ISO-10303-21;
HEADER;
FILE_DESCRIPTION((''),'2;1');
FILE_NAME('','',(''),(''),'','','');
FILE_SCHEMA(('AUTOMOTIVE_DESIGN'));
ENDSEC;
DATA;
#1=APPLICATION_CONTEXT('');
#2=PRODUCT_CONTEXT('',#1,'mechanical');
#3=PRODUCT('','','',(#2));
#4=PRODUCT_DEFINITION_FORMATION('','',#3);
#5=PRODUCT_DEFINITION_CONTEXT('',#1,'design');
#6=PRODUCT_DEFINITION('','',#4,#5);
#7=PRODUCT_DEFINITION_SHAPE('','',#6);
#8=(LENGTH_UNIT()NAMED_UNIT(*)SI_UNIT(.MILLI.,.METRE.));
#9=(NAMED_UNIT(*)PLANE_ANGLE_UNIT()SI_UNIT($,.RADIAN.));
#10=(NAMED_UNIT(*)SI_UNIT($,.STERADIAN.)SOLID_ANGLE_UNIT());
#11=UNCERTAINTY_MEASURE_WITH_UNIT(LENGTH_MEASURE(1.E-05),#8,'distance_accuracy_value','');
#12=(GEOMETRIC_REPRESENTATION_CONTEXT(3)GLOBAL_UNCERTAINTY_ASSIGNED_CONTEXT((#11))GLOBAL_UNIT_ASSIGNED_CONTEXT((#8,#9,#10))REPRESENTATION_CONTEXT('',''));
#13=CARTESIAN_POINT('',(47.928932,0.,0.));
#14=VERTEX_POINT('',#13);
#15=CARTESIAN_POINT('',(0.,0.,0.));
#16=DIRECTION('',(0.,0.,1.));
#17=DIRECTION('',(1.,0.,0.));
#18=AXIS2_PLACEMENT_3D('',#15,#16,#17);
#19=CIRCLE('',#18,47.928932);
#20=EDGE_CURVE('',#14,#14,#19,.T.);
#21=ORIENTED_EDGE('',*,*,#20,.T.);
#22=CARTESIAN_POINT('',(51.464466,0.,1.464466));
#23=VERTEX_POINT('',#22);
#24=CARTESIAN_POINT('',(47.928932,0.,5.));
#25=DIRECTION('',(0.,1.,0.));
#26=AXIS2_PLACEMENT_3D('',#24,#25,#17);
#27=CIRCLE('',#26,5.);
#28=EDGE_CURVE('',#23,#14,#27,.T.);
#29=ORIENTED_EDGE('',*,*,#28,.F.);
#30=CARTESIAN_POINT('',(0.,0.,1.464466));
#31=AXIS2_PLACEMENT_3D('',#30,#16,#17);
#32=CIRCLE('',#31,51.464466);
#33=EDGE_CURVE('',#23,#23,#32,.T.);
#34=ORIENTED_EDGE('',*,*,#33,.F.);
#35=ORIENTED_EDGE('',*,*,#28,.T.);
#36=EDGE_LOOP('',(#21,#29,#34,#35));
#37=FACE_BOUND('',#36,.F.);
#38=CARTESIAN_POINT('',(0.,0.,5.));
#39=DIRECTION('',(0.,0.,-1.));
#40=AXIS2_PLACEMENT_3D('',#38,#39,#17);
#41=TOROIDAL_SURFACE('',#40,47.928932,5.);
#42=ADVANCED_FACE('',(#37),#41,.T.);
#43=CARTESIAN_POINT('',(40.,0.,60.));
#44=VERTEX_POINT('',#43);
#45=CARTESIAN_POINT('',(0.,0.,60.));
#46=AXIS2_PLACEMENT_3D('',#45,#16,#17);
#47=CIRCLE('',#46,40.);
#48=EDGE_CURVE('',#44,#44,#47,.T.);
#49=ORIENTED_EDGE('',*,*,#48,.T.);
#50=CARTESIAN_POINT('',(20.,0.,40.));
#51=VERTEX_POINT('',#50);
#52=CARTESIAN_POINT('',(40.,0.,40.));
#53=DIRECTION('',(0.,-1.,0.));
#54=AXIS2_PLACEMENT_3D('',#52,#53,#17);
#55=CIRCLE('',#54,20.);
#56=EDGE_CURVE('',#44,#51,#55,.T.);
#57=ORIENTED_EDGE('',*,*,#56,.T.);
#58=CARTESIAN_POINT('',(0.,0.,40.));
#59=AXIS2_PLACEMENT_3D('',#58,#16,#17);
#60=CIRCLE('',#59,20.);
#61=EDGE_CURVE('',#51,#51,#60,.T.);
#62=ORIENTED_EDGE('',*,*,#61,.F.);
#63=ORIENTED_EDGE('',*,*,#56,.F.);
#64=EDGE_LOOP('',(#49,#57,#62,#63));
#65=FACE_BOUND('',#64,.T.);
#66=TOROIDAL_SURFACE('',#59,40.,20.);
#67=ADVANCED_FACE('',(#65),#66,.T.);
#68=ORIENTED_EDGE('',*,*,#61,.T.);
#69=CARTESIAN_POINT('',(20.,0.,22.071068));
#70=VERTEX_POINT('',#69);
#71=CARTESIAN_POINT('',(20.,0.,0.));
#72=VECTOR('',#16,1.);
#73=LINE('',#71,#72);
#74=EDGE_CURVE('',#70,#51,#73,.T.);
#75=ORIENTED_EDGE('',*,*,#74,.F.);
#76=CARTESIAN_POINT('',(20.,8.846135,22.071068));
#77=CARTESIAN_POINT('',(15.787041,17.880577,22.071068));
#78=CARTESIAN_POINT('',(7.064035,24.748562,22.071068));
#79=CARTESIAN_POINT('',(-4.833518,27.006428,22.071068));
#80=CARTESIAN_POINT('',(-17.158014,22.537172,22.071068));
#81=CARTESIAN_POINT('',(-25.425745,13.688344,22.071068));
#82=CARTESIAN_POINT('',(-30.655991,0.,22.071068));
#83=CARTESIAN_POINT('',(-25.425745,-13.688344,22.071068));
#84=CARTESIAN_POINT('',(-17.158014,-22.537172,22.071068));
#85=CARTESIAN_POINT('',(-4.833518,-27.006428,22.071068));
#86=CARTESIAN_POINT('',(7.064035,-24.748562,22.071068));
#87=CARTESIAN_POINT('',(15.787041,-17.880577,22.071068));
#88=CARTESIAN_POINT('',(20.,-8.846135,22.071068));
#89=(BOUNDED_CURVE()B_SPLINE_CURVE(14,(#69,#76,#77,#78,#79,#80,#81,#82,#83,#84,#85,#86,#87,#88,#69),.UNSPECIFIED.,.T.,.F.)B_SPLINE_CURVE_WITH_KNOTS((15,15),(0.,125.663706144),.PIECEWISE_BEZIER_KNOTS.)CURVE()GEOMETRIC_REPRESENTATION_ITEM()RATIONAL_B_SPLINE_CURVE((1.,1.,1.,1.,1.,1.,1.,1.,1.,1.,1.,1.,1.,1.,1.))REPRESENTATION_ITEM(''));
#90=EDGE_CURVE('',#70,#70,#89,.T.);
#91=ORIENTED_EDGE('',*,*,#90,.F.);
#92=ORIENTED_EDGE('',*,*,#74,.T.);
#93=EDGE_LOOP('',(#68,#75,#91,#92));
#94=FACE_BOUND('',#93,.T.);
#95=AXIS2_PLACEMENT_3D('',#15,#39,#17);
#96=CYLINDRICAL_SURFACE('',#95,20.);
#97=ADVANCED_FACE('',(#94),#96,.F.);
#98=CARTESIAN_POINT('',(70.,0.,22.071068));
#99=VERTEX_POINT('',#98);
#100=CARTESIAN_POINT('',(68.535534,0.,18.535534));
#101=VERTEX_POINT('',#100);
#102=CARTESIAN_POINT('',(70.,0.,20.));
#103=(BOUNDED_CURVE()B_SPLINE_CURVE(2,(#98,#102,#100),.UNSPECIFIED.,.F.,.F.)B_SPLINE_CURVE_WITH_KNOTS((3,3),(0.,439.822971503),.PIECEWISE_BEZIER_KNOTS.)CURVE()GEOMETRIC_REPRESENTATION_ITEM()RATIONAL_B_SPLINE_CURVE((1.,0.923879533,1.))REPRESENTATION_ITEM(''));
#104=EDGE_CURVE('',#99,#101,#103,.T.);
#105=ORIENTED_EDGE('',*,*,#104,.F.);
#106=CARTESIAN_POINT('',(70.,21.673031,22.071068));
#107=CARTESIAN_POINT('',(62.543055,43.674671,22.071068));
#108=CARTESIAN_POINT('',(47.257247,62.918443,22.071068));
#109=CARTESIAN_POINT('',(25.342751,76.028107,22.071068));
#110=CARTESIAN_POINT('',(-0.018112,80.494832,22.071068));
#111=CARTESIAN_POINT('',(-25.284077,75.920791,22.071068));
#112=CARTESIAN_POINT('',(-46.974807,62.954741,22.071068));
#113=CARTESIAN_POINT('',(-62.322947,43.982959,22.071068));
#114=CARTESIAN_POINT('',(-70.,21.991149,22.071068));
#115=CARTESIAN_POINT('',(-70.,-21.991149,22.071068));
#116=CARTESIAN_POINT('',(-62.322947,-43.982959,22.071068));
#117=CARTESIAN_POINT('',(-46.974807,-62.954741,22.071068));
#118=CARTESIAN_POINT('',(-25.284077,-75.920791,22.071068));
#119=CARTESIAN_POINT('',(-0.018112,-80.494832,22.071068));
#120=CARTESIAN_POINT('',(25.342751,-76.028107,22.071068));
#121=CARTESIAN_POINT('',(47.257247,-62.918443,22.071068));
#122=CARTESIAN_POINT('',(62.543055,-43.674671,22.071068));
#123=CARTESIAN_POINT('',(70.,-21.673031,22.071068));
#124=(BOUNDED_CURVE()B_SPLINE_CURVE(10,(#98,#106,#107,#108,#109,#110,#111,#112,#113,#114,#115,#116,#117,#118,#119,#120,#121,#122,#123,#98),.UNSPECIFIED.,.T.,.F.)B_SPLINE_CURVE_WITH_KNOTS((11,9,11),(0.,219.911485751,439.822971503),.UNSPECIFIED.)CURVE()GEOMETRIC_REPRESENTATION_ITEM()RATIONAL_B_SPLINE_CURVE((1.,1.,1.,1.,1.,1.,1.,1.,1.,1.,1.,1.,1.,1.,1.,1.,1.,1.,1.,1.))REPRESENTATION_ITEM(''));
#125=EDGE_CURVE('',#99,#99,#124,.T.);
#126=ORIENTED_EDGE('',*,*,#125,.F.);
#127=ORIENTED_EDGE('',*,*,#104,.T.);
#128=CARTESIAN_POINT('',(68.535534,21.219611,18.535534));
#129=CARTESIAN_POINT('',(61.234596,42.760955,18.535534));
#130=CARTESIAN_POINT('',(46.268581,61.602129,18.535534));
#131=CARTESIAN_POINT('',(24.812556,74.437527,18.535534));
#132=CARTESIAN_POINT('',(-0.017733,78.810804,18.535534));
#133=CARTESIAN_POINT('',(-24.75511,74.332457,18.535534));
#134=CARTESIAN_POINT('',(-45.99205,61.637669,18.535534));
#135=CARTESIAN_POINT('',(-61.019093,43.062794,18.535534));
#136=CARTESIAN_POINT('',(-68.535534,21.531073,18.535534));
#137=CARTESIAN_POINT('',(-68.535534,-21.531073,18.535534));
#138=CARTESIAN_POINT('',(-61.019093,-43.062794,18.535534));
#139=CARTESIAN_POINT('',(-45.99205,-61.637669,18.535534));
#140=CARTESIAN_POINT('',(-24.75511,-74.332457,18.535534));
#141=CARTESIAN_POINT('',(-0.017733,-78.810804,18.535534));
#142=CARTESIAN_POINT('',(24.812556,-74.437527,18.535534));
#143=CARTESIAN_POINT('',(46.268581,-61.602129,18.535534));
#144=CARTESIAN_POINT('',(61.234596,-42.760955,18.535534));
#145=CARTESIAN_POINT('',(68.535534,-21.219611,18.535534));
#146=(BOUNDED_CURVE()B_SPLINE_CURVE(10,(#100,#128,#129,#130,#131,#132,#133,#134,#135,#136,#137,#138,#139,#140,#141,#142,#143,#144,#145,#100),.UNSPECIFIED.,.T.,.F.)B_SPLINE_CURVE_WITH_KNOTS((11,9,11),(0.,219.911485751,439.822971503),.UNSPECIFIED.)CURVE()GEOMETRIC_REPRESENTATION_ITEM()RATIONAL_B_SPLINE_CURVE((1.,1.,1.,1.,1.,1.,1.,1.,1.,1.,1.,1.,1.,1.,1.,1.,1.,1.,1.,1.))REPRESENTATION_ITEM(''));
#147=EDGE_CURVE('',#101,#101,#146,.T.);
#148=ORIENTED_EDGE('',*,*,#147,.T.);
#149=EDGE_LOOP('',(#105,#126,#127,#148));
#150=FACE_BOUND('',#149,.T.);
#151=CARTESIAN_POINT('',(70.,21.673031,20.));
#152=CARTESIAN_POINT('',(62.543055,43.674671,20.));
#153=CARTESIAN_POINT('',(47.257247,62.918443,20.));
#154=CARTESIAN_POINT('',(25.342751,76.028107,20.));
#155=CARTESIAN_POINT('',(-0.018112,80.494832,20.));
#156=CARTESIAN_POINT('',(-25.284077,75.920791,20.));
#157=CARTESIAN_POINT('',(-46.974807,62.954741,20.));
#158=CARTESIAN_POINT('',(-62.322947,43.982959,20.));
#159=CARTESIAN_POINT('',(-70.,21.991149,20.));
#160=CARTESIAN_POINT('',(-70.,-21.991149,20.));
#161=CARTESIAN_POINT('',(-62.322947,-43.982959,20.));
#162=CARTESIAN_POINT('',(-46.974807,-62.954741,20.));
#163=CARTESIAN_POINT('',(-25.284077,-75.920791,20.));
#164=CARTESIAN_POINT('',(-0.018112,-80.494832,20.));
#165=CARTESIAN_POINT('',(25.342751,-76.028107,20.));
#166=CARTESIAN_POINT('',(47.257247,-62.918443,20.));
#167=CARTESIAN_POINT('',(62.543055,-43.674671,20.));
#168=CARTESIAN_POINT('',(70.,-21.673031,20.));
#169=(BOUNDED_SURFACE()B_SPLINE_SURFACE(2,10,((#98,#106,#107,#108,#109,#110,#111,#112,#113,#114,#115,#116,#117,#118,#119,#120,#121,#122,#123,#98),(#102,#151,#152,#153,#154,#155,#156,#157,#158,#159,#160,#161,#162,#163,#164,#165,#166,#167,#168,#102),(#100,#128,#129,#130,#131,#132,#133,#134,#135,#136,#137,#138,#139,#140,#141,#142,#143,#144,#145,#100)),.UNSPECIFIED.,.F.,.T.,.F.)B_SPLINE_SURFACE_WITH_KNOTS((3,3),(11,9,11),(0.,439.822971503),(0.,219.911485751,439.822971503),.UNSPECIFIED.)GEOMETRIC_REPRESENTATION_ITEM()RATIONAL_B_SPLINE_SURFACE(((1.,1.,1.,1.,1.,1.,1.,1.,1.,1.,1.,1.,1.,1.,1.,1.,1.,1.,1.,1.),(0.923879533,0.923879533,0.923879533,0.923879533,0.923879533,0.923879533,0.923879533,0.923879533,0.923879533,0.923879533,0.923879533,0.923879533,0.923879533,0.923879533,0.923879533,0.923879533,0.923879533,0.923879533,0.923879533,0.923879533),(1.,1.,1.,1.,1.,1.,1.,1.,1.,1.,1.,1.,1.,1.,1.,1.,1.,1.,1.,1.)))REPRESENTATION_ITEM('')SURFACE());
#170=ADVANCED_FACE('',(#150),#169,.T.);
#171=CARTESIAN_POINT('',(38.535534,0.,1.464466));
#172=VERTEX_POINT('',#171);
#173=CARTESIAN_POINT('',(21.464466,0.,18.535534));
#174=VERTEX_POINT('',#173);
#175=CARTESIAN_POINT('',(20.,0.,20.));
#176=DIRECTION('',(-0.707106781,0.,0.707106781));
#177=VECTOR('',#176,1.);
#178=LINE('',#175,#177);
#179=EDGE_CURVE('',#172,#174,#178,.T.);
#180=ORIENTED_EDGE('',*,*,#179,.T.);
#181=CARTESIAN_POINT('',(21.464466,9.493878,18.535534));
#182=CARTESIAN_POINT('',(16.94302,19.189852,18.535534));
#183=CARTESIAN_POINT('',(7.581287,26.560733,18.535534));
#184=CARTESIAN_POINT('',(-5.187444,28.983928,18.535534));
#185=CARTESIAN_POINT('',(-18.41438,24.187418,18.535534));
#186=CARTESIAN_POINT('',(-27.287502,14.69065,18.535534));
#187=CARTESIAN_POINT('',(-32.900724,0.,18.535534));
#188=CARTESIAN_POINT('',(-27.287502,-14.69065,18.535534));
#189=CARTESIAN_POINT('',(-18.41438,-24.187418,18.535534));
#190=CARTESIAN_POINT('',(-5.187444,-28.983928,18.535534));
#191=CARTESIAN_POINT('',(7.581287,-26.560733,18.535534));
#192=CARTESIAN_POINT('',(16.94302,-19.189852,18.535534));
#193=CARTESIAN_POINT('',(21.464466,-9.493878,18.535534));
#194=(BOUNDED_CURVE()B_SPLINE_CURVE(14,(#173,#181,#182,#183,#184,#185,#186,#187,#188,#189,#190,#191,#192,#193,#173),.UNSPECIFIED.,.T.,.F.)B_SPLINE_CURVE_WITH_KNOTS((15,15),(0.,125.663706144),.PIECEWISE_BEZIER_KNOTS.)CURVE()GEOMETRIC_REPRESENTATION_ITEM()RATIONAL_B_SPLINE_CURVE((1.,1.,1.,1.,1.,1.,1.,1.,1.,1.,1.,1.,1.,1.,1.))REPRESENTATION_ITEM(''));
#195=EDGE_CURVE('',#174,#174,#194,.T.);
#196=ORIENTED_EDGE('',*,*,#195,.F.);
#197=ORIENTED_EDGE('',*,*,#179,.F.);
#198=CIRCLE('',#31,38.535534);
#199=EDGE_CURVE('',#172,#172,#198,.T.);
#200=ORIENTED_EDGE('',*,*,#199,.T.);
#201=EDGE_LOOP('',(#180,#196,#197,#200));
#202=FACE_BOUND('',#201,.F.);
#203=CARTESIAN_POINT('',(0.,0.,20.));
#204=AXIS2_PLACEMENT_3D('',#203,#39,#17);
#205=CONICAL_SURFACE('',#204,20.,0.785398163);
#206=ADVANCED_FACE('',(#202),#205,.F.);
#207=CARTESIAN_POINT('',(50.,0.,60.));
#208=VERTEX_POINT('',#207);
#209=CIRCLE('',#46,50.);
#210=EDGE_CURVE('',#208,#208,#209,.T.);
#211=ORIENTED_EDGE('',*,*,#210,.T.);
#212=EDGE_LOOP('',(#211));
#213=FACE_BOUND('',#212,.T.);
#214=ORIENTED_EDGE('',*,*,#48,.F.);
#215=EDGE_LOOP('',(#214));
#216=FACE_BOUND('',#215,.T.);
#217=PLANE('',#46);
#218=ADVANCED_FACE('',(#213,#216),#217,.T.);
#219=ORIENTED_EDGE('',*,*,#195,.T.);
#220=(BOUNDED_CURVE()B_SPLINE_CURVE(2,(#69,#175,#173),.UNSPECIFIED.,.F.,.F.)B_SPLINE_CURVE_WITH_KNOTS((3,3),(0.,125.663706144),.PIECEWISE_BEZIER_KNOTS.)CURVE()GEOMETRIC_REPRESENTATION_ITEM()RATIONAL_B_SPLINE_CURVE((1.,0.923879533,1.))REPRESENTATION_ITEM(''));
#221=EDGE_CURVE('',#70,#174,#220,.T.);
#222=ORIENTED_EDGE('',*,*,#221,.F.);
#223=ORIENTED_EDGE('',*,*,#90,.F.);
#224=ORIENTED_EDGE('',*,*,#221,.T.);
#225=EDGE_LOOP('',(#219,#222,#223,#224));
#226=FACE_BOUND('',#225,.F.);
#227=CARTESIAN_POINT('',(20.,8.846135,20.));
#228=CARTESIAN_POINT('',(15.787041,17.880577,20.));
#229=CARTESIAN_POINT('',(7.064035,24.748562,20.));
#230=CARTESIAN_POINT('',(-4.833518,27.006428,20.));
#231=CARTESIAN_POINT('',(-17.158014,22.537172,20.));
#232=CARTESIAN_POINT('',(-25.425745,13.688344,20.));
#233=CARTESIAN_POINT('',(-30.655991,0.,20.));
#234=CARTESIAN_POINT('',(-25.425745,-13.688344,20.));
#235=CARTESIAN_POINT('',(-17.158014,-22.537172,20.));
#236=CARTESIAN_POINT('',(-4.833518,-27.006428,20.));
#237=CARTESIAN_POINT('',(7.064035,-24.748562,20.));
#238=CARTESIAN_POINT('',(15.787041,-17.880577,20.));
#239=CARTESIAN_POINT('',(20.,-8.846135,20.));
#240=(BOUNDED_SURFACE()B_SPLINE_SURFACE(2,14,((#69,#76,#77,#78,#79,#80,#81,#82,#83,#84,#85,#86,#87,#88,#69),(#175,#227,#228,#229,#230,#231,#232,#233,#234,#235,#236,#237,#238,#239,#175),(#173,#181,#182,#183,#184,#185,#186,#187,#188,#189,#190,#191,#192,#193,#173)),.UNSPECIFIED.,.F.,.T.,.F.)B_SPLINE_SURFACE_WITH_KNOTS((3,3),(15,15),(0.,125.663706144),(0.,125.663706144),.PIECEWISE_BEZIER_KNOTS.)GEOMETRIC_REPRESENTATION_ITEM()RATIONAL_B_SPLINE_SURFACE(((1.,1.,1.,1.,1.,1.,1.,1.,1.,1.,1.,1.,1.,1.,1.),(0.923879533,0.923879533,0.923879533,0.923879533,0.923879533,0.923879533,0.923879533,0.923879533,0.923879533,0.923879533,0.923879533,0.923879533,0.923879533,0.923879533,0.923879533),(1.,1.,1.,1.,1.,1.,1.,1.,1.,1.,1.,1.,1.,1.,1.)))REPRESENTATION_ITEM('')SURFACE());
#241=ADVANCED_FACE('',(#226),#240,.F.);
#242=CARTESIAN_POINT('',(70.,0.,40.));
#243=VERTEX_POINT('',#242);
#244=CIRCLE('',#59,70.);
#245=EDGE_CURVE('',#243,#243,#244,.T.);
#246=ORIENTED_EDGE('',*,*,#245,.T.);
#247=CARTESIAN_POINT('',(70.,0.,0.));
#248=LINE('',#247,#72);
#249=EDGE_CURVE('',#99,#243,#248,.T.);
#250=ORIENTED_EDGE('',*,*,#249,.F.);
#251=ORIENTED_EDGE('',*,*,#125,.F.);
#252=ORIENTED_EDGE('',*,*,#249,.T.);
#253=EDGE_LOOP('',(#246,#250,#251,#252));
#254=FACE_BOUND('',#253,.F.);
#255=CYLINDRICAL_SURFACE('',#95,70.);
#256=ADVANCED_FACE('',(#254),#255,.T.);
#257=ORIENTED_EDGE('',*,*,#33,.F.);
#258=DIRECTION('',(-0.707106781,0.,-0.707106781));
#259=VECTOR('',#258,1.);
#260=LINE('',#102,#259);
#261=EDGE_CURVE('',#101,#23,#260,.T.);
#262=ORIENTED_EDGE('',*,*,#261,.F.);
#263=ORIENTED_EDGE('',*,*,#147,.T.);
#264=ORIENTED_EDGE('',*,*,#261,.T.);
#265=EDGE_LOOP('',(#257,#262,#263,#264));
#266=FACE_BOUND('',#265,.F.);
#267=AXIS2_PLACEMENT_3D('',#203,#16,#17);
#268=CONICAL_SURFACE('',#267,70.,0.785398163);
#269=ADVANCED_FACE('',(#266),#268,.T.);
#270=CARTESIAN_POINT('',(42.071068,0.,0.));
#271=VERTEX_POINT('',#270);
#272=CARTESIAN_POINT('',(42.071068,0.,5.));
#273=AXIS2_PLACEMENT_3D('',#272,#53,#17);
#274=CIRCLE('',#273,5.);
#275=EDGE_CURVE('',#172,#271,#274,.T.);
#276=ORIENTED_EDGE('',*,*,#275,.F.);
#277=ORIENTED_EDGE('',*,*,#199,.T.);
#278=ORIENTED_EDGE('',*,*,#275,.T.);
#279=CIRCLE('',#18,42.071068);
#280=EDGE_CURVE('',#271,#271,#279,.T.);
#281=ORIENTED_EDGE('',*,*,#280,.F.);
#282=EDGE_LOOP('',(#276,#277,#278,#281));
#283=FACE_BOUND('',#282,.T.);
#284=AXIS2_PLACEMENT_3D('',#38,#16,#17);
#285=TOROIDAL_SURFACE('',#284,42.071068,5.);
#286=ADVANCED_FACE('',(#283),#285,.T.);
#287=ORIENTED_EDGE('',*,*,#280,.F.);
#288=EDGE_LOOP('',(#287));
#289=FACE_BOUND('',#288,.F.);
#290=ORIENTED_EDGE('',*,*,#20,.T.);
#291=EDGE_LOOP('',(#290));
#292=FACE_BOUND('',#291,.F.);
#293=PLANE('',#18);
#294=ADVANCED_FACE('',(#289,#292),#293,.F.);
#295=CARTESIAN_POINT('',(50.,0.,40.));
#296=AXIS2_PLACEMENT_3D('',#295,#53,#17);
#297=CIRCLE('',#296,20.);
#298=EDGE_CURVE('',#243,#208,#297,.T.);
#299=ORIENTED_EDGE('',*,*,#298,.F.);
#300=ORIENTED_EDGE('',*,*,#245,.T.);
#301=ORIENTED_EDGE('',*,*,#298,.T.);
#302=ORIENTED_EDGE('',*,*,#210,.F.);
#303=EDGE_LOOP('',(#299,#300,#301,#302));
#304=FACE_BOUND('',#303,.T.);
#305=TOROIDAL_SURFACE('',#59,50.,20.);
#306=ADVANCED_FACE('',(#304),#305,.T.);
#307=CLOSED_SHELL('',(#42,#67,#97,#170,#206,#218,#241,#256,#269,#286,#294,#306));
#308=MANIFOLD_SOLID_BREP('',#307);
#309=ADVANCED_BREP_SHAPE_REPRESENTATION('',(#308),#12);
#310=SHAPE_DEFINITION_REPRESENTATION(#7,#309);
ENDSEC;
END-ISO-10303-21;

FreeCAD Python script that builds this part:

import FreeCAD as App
import Part
import Sketcher


def edges_at(feature, points):
    """Names of the edges that pass closest to the given points."""
    edges = feature.Shape.Edges
    near = lambda p: min(range(len(edges)), key=lambda i: edges[i].distToShape(Part.Vertex(*p))[0])
    return sorted({f"Edge{near(p) + 1}" for p in points})

doc = App.newDocument("Part")
body = doc.addObject("PartDesign::Body", "Body")

sketch1 = body.newObject("Sketcher::SketchObject", "Sketch")
sketch1.AttachmentSupport = (doc.getObject("XY_Plane"), [""])
sketch1.MapMode = "FlatFace"
sketch1.addGeometry([
    Part.Circle(App.Vector(0, 0, 0), App.Vector(0, 0, 1), 70),
    Part.Circle(App.Vector(0, 0, 0), App.Vector(0, 0, 1), 20),
], False)
sketch1.addConstraint([
    Sketcher.Constraint("Coincident", 0, 3, -1, 1),
    Sketcher.Constraint("Coincident", 1, 3, -1, 1),
    Sketcher.Constraint("Diameter", 0, 140.0),
    Sketcher.Constraint("Diameter", 1, 40.0),
])
pad1 = body.newObject("PartDesign::Pad", "Pad")
pad1.Profile = sketch1
pad1.Length = 60
doc.recompute()

fillet = body.newObject("PartDesign::Fillet", "Fillet")
fillet.Base = (pad1, edges_at(pad1, [(-70, 0, 60)]))
fillet.Radius = 20
doc.recompute()

chamfer = body.newObject("PartDesign::Chamfer", "Chamfer")
chamfer.Base = (fillet, edges_at(fillet, [(-70, 0, 0), (-20, 0, 0)]))
chamfer.Size = 20
doc.recompute()

fillet2 = body.newObject("PartDesign::Fillet", "Fillet001")
fillet2.Base = (chamfer, edges_at(chamfer, [(-20, 0, 60)]))
fillet2.Radius = 20
doc.recompute()

fillet3 = body.newObject("PartDesign::Fillet", "Fillet002")
fillet3.Base = (fillet2, edges_at(fillet2, [
    (-70, 0, 20),
    (-50, 0, 0),
    (-40, 0, 0),
    (-20, 0, 20),
]))
fillet3.Radius = 5

doc.recompute()
